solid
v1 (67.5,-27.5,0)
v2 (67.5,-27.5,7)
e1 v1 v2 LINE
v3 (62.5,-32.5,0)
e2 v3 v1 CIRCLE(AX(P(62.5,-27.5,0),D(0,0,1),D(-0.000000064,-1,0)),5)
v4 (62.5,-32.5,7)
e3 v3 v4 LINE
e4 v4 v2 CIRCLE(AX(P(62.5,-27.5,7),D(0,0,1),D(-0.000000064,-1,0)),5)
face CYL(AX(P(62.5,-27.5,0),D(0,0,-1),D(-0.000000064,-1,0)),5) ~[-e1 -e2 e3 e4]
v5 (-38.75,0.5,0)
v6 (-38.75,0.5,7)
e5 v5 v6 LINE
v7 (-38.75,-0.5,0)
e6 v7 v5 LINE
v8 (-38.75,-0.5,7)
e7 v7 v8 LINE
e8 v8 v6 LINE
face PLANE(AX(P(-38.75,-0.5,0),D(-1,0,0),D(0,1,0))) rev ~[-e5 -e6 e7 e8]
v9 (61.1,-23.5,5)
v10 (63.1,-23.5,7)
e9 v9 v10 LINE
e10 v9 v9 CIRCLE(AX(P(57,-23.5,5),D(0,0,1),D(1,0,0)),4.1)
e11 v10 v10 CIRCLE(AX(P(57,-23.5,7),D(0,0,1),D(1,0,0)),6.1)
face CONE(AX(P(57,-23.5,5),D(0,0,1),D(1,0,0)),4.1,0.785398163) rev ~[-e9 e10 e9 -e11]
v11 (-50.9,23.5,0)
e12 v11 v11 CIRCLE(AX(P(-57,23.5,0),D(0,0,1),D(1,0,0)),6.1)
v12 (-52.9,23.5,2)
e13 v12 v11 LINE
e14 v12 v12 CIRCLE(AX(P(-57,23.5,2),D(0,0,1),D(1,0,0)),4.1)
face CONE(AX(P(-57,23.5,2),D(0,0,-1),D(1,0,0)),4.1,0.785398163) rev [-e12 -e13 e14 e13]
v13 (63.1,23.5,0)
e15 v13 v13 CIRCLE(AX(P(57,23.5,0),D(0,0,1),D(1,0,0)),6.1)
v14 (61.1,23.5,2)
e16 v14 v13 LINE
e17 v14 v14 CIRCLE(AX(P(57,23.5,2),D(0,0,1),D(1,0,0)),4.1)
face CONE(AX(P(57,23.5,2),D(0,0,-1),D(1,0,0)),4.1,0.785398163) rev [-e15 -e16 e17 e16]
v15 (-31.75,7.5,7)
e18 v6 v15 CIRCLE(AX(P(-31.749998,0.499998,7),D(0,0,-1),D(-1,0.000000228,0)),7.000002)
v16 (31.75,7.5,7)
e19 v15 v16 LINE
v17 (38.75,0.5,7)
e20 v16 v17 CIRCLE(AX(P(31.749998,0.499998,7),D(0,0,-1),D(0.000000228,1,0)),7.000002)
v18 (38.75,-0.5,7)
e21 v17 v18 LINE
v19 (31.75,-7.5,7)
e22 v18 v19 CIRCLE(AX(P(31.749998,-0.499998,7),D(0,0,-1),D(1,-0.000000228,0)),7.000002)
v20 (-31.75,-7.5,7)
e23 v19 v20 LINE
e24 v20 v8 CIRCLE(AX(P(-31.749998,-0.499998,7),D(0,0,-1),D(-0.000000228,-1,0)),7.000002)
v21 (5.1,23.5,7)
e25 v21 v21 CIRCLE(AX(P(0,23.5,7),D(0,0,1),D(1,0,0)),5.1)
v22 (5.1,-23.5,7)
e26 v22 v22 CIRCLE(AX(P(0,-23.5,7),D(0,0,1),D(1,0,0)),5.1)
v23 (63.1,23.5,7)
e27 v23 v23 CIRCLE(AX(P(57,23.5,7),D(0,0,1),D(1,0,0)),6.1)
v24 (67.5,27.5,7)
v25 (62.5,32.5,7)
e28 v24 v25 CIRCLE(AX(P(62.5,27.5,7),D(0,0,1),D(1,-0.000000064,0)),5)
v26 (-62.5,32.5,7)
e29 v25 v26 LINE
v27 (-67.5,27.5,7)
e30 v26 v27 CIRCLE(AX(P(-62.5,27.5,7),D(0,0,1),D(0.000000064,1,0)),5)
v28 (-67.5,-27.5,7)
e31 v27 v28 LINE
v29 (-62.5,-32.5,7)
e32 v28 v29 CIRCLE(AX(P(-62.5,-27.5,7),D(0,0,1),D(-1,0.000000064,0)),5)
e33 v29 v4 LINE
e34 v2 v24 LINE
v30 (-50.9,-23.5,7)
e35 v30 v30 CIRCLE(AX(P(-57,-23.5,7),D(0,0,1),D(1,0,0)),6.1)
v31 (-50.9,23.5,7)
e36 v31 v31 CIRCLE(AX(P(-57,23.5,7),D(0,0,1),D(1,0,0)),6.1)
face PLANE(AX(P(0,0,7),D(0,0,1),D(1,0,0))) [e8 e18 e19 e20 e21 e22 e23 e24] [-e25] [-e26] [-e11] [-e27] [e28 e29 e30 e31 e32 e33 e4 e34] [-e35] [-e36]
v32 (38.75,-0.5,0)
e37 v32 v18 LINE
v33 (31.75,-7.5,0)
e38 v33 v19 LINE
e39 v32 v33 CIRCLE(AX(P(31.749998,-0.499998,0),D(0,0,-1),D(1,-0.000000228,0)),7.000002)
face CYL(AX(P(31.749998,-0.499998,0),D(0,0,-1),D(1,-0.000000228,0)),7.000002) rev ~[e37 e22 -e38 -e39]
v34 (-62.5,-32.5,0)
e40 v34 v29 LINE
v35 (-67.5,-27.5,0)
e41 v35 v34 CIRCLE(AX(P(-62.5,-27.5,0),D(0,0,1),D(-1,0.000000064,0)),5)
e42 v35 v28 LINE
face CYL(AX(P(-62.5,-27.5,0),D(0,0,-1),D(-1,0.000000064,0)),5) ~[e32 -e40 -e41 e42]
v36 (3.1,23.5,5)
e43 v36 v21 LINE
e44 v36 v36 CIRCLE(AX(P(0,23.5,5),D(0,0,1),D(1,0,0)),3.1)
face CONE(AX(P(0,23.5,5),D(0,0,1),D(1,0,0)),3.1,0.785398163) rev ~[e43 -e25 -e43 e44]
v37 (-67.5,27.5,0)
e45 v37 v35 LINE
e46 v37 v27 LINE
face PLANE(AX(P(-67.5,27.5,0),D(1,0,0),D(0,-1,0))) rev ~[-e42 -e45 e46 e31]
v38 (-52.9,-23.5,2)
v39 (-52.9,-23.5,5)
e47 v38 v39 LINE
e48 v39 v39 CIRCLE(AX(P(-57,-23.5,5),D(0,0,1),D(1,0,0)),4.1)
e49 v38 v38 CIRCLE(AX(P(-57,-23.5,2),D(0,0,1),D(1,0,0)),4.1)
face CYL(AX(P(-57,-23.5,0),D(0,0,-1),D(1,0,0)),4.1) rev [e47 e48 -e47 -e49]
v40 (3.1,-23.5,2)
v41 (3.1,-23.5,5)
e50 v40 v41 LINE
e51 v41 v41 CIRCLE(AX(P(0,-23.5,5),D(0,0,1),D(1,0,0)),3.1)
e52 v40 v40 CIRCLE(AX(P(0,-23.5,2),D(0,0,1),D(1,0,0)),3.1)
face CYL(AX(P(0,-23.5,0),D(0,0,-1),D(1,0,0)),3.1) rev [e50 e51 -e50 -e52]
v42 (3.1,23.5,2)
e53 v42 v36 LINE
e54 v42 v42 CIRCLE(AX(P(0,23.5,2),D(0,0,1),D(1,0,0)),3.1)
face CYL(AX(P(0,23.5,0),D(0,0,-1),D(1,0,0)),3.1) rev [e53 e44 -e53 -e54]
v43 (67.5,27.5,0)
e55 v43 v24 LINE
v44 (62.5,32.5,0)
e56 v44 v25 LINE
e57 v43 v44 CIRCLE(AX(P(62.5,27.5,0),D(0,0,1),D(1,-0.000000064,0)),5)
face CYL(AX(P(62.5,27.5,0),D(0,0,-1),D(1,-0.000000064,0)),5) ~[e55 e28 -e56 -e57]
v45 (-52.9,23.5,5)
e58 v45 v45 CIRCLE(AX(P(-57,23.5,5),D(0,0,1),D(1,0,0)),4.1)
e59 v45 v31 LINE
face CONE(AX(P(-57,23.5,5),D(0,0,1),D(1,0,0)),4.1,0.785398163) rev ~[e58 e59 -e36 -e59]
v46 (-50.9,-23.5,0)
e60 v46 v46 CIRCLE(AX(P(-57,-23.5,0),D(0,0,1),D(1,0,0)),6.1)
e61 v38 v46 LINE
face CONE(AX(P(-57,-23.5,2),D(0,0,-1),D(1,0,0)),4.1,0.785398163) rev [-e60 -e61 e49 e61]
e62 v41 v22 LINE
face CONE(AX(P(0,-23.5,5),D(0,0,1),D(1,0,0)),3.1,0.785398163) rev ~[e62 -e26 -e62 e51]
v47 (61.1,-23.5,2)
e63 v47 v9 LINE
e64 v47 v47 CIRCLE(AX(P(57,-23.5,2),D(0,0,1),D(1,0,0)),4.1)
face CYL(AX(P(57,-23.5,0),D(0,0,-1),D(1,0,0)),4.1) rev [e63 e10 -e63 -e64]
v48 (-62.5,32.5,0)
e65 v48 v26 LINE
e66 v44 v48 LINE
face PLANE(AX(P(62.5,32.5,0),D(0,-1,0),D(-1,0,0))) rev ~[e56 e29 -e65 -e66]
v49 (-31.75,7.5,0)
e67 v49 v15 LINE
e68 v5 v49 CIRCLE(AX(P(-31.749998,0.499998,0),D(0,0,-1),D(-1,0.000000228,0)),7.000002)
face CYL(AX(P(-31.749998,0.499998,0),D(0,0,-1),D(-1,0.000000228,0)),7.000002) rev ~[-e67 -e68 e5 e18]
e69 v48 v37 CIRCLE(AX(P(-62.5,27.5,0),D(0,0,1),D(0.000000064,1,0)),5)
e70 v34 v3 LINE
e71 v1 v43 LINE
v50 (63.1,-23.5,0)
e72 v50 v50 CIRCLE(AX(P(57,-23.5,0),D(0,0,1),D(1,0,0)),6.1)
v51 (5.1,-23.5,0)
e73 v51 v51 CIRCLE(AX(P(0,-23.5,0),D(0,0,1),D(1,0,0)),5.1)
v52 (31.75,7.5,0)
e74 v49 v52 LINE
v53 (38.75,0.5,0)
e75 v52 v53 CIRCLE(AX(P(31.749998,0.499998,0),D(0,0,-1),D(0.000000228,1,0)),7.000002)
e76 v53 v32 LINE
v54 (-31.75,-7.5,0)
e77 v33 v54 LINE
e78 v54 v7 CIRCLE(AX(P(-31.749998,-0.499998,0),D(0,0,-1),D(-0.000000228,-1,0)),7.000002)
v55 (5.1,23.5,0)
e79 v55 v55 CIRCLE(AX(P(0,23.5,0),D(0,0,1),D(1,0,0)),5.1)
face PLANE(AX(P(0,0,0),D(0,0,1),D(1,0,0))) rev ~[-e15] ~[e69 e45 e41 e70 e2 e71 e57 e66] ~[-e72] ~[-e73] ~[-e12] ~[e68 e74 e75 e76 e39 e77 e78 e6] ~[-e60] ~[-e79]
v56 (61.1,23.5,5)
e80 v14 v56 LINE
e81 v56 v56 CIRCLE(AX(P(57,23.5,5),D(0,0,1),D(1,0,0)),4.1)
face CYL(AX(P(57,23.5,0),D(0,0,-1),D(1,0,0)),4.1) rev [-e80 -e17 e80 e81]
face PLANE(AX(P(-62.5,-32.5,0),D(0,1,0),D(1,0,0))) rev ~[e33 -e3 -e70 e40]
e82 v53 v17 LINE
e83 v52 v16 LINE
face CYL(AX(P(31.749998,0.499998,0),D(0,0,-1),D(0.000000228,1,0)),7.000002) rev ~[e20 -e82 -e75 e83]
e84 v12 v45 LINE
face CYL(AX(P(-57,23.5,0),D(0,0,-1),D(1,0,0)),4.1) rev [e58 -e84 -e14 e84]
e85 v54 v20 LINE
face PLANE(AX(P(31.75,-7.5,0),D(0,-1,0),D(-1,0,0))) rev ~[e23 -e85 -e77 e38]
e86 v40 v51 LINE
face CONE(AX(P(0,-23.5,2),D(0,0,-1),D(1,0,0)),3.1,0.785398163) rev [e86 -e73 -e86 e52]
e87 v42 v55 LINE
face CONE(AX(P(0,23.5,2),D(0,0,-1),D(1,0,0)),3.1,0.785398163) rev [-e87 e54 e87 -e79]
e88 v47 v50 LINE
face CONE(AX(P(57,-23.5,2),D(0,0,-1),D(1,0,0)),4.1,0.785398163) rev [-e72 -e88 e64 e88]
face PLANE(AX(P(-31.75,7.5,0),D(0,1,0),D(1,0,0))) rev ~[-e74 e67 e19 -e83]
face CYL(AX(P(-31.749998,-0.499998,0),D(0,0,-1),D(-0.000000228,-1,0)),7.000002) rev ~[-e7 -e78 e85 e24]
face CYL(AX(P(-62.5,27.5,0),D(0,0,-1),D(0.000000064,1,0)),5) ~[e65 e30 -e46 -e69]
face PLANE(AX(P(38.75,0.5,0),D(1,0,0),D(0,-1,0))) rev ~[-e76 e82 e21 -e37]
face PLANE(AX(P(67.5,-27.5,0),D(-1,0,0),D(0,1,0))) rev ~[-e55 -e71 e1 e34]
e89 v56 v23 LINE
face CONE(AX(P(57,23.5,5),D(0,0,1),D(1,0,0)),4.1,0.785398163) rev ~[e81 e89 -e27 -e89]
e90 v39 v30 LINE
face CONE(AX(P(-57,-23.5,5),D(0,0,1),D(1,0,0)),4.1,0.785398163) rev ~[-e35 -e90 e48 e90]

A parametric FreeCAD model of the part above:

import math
import FreeCAD as App
import Part
import Sketcher
from FreeCAD import Vector
Q = App.Units.Quantity


def edges_at(feature, points):
    """Names of the edges that pass closest to the given points."""
    edges = feature.Shape.Edges
    near = lambda p: min(range(len(edges)), key=lambda i: edges[i].distToShape(Part.Vertex(*p))[0])
    return sorted({f"Edge{near(p) + 1}" for p in points})

doc = App.newDocument("Part")
params = doc.addObject("Spreadsheet::Sheet", "Params")
for row, (alias, value) in enumerate([
    ("sketch1_radius", "5 mm"),
    ("sketch1_radius2", "7.000002 mm"),
    ("sketch1_diameter", "8.2 mm"),
    ("sketch1_diameter2", "6.2 mm"),
    ("sketch1_width", "125 mm"),
    ("pad1_length", "7 mm"),
    ("chamfer_size", "2 mm"),
], start=1):
    params.set(f"A{row}", alias)
    params.set(f"B{row}", "=" + value)
    params.setAlias(f"B{row}", alias)

body = doc.addObject("PartDesign::Body", "Body")

# Sketch on XY plane
sketch1 = body.newObject("Sketcher::SketchObject", "Sketch")
sketch1.AttachmentSupport = (doc.getObject("XY_Plane"), [""])
sketch1.MapMode = "FlatFace"
sketch1.addGeometry(Part.ArcOfCircle(Part.Circle(Vector(62.5, 27.5, 0), Vector(0, 0, 1), 5), math.radians(0), math.radians(90)), False)
sketch1.addGeometry(Part.LineSegment(Vector(62.5, 32.5, 0), Vector(-62.5, 32.5, 0)), False)
sketch1.addGeometry(Part.ArcOfCircle(Part.Circle(Vector(-62.5, 27.5, 0), Vector(0, 0, 1), 5), math.radians(90), math.radians(180)), False)
sketch1.addGeometry(Part.LineSegment(Vector(-67.5, 27.5, 0), Vector(-67.5, -27.5, 0)), False)
sketch1.addGeometry(Part.ArcOfCircle(Part.Circle(Vector(-62.5, -27.5, 0), Vector(0, 0, 1), 5), math.radians(180), math.radians(270)), False)
sketch1.addGeometry(Part.LineSegment(Vector(-62.5, -32.5, 0), Vector(62.5, -32.5, 0)), False)
sketch1.addGeometry(Part.ArcOfCircle(Part.Circle(Vector(62.5, -27.5, 0), Vector(0, 0, 1), 5), math.radians(-90), math.radians(0)), False)
sketch1.addGeometry(Part.LineSegment(Vector(67.5, -27.5, 0), Vector(67.5, 27.5, 0)), False)
sketch1.addGeometry(Part.Circle(Vector(-57, -23.5, 0), Vector(0, 0, 1), 4.1), False)
sketch1.addGeometry(Part.Circle(Vector(0, -23.5, 0), Vector(0, 0, 1), 3.1), False)
sketch1.addGeometry(Part.Circle(Vector(57, -23.5, 0), Vector(0, 0, 1), 4.1), False)
sketch1.addGeometry(Part.Circle(Vector(-57, 23.5, 0), Vector(0, 0, 1), 4.1), False)
sketch1.addGeometry(Part.ArcOfCircle(Part.Circle(Vector(-31.7, 0.5, 0), Vector(0, 0, 1), 7), math.radians(90), math.radians(180)), False)
sketch1.addGeometry(Part.LineSegment(Vector(-31.8, 7.5, 0), Vector(31.8, 7.5, 0)), False)
sketch1.addGeometry(Part.ArcOfCircle(Part.Circle(Vector(31.7, 0.5, 0), Vector(0, 0, 1), 7), math.radians(0), math.radians(90)), False)
sketch1.addGeometry(Part.LineSegment(Vector(38.8, 0.5, 0), Vector(38.8, -0.5, 0)), False)
sketch1.addGeometry(Part.ArcOfCircle(Part.Circle(Vector(31.7, -0.5, 0), Vector(0, 0, 1), 7), math.radians(-90), math.radians(0)), False)
sketch1.addGeometry(Part.LineSegment(Vector(31.8, -7.5, 0), Vector(-31.8, -7.5, 0)), False)
sketch1.addGeometry(Part.ArcOfCircle(Part.Circle(Vector(-31.7, -0.5, 0), Vector(0, 0, 1), 7), math.radians(-180), math.radians(-90)), False)
sketch1.addGeometry(Part.LineSegment(Vector(-38.8, -0.5, 0), Vector(-38.8, 0.5, 0)), False)
sketch1.addGeometry(Part.Circle(Vector(0, 23.5, 0), Vector(0, 0, 1), 3.1), False)
sketch1.addGeometry(Part.Circle(Vector(57, 23.5, 0), Vector(0, 0, 1), 4.1), False)
sketch1.addConstraint(Sketcher.Constraint("Tangent", 0, 2, 1, 1))
sketch1.addConstraint(Sketcher.Constraint("Tangent", 1, 2, 2, 1))
sketch1.addConstraint(Sketcher.Constraint("Tangent", 2, 2, 3, 1))
sketch1.addConstraint(Sketcher.Constraint("Tangent", 3, 2, 4, 1))
sketch1.addConstraint(Sketcher.Constraint("Tangent", 4, 2, 5, 1))
sketch1.addConstraint(Sketcher.Constraint("Tangent", 5, 2, 6, 1))
sketch1.addConstraint(Sketcher.Constraint("Tangent", 6, 2, 7, 1))
sketch1.addConstraint(Sketcher.Constraint("Tangent", 7, 2, 0, 1))
sketch1.addConstraint(Sketcher.Constraint("Tangent", 12, 1, 13, 1))
sketch1.addConstraint(Sketcher.Constraint("Tangent", 13, 2, 14, 2))
sketch1.addConstraint(Sketcher.Constraint("Tangent", 14, 1, 15, 1))
sketch1.addConstraint(Sketcher.Constraint("Tangent", 15, 2, 16, 2))
sketch1.addConstraint(Sketcher.Constraint("Tangent", 16, 1, 17, 1))
sketch1.addConstraint(Sketcher.Constraint("Tangent", 17, 2, 18, 2))
sketch1.addConstraint(Sketcher.Constraint("Tangent", 18, 1, 19, 1))
sketch1.addConstraint(Sketcher.Constraint("Tangent", 19, 2, 12, 2))
sketch1.addConstraint(Sketcher.Constraint("Horizontal", 1))
sketch1.addConstraint(Sketcher.Constraint("Vertical", 3))
sketch1.addConstraint(Sketcher.Constraint("Horizontal", 5))
sketch1.addConstraint(Sketcher.Constraint("Vertical", 7))
sketch1.addConstraint(Sketcher.Constraint("Horizontal", 13))
sketch1.addConstraint(Sketcher.Constraint("Vertical", 15))
sketch1.addConstraint(Sketcher.Constraint("Horizontal", 17))
sketch1.addConstraint(Sketcher.Constraint("Vertical", 19))
sketch1.addConstraint(Sketcher.Constraint("Equal", 0, 2))
sketch1.addConstraint(Sketcher.Constraint("Equal", 2, 4))
sketch1.addConstraint(Sketcher.Constraint("Equal", 4, 6))
sketch1.addConstraint(Sketcher.Constraint("Equal", 8, 10))
sketch1.addConstraint(Sketcher.Constraint("Equal", 10, 11))
sketch1.addConstraint(Sketcher.Constraint("Equal", 12, 14))
sketch1.addConstraint(Sketcher.Constraint("Equal", 14, 16))
sketch1.addConstraint(Sketcher.Constraint("Equal", 16, 18))
sketch1.addConstraint(Sketcher.Constraint("Equal", 9, 20))
sketch1.addConstraint(Sketcher.Constraint("Equal", 11, 21))
sketch1.addConstraint(Sketcher.Constraint("Symmetric", 0, 3, 4, 3, -1, 1))
sketch1.addConstraint(Sketcher.Constraint("Symmetric", 10, 3, 11, 3, -1, 1))
sketch1.addConstraint(Sketcher.Constraint("Symmetric", 12, 3, 16, 3, -1, 1))
sketch1.addConstraint(Sketcher.Constraint("Symmetric", 9, 3, 20, 3, -1, 1))
sketch1.addConstraint(Sketcher.Constraint("Symmetric", 8, 3, 21, 3, -1, 1))
sketch1.addConstraint(Sketcher.Constraint("Symmetric", 8, 3, 10, 3, -2))
sketch1.addConstraint(Sketcher.Constraint("PointOnObject", 9, 3, -2))
sketch1.addConstraint(Sketcher.Constraint("Horizontal", 8, 3, 9, 3))
sketch1.addConstraint(Sketcher.Constraint("Radius", 0, Q("5 mm")))
sketch1.addConstraint(Sketcher.Constraint("Radius", 12, Q("7.000002 mm")))
sketch1.addConstraint(Sketcher.Constraint("Diameter", 8, Q("8.2 mm")))
sketch1.addConstraint(Sketcher.Constraint("Diameter", 9, Q("6.2 mm")))
sketch1.addConstraint(Sketcher.Constraint("DistanceX", 1, 2, 1, 1, Q("125 mm")))
sketch1.addConstraint(Sketcher.Constraint("DistanceY", 3, 2, 3, 1, Q("55 mm")))
sketch1.addConstraint(Sketcher.Constraint("DistanceY", 15, 2, 15, 1, Q("1 mm")))
sketch1.addConstraint(Sketcher.Constraint("DistanceX", 13, 1, 13, 2, Q("63.5 mm")))
sketch1.addConstraint(Sketcher.Constraint("DistanceX", 8, 3, -1, 1, Q("57 mm")))
sketch1.addConstraint(Sketcher.Constraint("DistanceY", 4, 3, 8, 3, Q("4 mm")))
sketch1.setExpression("Constraints[42]", "Params.sketch1_radius")
sketch1.setExpression("Constraints[43]", "Params.sketch1_radius2")
sketch1.setExpression("Constraints[44]", "Params.sketch1_diameter")
sketch1.setExpression("Constraints[45]", "Params.sketch1_diameter2")
sketch1.setExpression("Constraints[46]", "Params.sketch1_width")
pad1 = body.newObject("PartDesign::Pad", "Pad")
pad1.Profile = sketch1
pad1.setExpression("Length", "Params.pad1_length")
doc.recompute()

chamfer = body.newObject("PartDesign::Chamfer", "Chamfer")
chamfer.Base = (pad1, edges_at(pad1, [
    (-52.9, -23.5, 3.5),
    (-61.1, -23.5, 0),
    (-61.1, -23.5, 7),
    (-52.9, 23.5, 3.5),
    (-61.1, 23.5, 0),
    (-61.1, 23.5, 7),
    (3.1, 23.5, 3.5),
    (-3.1, 23.5, 0),
    (-3.1, 23.5, 7),
    (61.1, 23.5, 3.5),
    (52.9, 23.5, 0),
    (52.9, 23.5, 7),
    (61.1, -23.5, 3.5),
    (52.9, -23.5, 0),
    (52.9, -23.5, 7),
    (3.1, -23.5, 3.5),
    (-3.1, -23.5, 0),
    (-3.1, -23.5, 7),
]))
chamfer.setExpression("Size", "Params.chamfer_size")

doc.recompute()
